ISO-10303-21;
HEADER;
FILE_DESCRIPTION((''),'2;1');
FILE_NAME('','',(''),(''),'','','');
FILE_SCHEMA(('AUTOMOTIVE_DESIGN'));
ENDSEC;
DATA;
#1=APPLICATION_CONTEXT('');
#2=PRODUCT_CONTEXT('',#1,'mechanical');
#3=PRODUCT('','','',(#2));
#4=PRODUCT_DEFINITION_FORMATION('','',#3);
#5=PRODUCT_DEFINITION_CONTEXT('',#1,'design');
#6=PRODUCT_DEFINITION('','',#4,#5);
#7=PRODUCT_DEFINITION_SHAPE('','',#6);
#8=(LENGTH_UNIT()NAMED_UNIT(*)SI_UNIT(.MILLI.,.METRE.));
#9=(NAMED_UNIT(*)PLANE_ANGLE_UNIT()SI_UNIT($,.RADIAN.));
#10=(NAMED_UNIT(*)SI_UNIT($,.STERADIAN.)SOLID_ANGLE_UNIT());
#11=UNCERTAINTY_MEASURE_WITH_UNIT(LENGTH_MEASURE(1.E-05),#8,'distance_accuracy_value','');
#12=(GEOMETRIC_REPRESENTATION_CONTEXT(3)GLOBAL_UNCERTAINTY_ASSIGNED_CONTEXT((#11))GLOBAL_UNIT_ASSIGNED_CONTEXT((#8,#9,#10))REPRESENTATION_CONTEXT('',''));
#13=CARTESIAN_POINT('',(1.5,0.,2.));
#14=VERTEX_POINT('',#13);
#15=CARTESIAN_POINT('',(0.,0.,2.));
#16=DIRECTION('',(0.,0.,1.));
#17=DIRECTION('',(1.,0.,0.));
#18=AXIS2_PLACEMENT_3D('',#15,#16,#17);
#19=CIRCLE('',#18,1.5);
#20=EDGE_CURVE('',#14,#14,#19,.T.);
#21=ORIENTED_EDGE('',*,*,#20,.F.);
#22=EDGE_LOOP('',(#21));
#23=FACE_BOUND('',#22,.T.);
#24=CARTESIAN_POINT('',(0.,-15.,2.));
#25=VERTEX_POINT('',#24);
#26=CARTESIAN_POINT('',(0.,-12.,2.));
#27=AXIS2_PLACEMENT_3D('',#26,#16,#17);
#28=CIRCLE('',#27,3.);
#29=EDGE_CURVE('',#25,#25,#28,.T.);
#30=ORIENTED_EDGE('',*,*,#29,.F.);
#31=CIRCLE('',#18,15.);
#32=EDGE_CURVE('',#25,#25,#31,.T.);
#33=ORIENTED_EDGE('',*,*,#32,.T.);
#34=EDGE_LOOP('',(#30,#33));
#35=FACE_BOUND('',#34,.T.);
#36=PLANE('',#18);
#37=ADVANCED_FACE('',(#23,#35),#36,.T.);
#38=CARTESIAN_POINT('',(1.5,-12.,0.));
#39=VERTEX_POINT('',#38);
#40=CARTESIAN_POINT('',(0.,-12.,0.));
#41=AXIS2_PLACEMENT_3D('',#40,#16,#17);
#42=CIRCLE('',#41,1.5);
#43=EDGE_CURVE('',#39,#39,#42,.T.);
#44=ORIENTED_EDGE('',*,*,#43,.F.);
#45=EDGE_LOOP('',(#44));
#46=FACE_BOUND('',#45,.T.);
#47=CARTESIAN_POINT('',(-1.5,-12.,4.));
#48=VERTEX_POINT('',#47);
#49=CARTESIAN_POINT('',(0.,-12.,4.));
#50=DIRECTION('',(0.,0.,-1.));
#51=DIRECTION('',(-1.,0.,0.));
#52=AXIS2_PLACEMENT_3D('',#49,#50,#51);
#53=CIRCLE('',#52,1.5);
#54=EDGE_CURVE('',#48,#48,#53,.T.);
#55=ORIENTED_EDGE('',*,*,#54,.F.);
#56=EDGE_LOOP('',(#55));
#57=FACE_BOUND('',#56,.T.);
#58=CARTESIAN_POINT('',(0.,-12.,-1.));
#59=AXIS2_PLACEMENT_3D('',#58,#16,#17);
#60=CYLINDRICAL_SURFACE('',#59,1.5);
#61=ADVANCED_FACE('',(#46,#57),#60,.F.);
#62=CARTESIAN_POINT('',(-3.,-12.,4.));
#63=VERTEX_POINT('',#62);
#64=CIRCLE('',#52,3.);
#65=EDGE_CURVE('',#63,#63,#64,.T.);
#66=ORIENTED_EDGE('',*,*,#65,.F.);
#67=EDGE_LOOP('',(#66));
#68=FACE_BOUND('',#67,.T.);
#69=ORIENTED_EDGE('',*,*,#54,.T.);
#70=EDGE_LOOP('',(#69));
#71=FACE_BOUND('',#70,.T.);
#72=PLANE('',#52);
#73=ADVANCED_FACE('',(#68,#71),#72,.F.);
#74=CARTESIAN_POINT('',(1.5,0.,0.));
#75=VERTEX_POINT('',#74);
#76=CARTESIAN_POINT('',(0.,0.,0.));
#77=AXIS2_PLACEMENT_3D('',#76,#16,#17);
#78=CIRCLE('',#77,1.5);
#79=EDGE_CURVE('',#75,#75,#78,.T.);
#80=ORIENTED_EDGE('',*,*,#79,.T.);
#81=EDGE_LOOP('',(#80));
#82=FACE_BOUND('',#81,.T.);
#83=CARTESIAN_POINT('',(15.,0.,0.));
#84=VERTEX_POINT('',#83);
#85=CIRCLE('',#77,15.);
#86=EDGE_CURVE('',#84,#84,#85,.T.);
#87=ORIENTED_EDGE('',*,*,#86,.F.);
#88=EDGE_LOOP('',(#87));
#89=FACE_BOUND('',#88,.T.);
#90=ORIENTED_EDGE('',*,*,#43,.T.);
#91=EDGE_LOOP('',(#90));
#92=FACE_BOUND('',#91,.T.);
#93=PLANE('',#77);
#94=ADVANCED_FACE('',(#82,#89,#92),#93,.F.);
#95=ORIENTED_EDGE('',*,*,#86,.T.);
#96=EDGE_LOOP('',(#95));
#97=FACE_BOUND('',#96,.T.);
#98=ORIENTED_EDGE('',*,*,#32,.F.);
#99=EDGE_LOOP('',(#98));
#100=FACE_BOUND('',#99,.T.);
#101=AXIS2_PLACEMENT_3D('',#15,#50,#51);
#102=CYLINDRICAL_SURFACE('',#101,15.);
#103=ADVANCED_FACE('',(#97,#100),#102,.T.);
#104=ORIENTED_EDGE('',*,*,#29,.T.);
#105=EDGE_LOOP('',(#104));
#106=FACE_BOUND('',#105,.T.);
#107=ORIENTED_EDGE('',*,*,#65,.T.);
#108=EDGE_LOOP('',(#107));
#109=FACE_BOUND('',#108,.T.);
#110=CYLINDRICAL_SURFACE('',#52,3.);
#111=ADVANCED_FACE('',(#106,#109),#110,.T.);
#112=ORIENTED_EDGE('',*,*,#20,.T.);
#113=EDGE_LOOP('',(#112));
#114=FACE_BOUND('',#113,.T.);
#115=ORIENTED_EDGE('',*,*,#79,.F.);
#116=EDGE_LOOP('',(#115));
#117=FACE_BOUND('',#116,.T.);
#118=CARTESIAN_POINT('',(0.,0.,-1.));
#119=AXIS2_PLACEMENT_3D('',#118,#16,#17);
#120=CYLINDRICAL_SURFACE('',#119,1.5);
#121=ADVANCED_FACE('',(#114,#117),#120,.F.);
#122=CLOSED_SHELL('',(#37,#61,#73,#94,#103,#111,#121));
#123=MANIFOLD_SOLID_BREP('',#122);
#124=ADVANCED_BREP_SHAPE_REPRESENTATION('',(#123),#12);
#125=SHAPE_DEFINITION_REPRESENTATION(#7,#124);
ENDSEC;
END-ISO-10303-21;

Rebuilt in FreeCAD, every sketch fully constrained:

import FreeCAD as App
import Part
import Sketcher
Q = App.Units.Quantity

doc = App.newDocument("Part")
body = doc.addObject("PartDesign::Body", "Body")

sketch1 = doc.addObject("Sketcher::SketchObject", "Sketch")
body.addObject(sketch1)
sketch1.AttachmentSupport = (doc.XY_Plane, [""])
sketch1.MapMode = "FlatFace"
sketch1.addGeometry(Part.Circle(App.Vector(0, 0, 0), App.Vector(0, 0, 1), 15), False)
sketch1.addConstraint([
    Sketcher.Constraint("Coincident", 0, 3, -1, 1),
    Sketcher.Constraint("Diameter", 0, Q("30 mm")),
])
pad1 = doc.addObject("PartDesign::Pad", "Pad")
body.addObject(pad1)
pad1.Profile = sketch1
pad1.Length = 2

sketch2 = doc.addObject("Sketcher::SketchObject", "Sketch001")
body.addObject(sketch2)
sketch2.AttachmentSupport = (doc.XY_Plane, [""])
sketch2.MapMode = "FlatFace"
sketch2.AttachmentOffset = App.Placement(App.Vector(0, 0, 2), App.Rotation())
sketch2.addGeometry(Part.Circle(App.Vector(0, 0, 0), App.Vector(0, 0, 1), 1.5), False)
sketch2.addConstraint([
    Sketcher.Constraint("Coincident", 0, 3, -1, 1),
    Sketcher.Constraint("Diameter", 0, Q("3 mm")),
])
pocket1 = doc.addObject("PartDesign::Pocket", "Pocket")
body.addObject(pocket1)
pocket1.Profile = sketch2
pocket1.Length = 3

sketch3 = doc.addObject("Sketcher::SketchObject", "Sketch002")
body.addObject(sketch3)
sketch3.AttachmentSupport = (doc.XY_Plane, [""])
sketch3.MapMode = "FlatFace"
sketch3.AttachmentOffset = App.Placement(App.Vector(0, 0, 2), App.Rotation())
sketch3.addGeometry(Part.Circle(App.Vector(0, -12, 0), App.Vector(0, 0, 1), 1.5), False)
sketch3.addConstraint([
    Sketcher.Constraint("PointOnObject", 0, 3, -2),
    Sketcher.Constraint("Diameter", 0, Q("3 mm")),
    Sketcher.Constraint("DistanceY", 0, 3, -1, 1, Q("12 mm")),
])
pocket2 = doc.addObject("PartDesign::Pocket", "Pocket001")
body.addObject(pocket2)
pocket2.Profile = sketch3
pocket2.Length = 3

sketch4 = doc.addObject("Sketcher::SketchObject", "Sketch003")
body.addObject(sketch4)
sketch4.AttachmentSupport = (doc.XY_Plane, [""])
sketch4.MapMode = "FlatFace"
sketch4.AttachmentOffset = App.Placement(App.Vector(0, 0, 4), App.Rotation())
sketch4.addGeometry([
    Part.Circle(App.Vector(0, -12, 0), App.Vector(0, 0, 1), 3),
    Part.Circle(App.Vector(0, -12, 0), App.Vector(0, 0, 1), 1.5),
], False)
sketch4.addConstraint([
    Sketcher.Constraint("Coincident", 1, 3, 0, 3),
    Sketcher.Constraint("PointOnObject", 0, 3, -2),
    Sketcher.Constraint("Diameter", 0, Q("6 mm")),
    Sketcher.Constraint("Diameter", 1, Q("3 mm")),
    Sketcher.Constraint("DistanceY", 0, 3, -1, 1, Q("12 mm")),
])
pad2 = doc.addObject("PartDesign::Pad", "Pad001")
body.addObject(pad2)
pad2.Profile = sketch4
pad2.Length = 4
pad2.Reversed = True

doc.recompute()
